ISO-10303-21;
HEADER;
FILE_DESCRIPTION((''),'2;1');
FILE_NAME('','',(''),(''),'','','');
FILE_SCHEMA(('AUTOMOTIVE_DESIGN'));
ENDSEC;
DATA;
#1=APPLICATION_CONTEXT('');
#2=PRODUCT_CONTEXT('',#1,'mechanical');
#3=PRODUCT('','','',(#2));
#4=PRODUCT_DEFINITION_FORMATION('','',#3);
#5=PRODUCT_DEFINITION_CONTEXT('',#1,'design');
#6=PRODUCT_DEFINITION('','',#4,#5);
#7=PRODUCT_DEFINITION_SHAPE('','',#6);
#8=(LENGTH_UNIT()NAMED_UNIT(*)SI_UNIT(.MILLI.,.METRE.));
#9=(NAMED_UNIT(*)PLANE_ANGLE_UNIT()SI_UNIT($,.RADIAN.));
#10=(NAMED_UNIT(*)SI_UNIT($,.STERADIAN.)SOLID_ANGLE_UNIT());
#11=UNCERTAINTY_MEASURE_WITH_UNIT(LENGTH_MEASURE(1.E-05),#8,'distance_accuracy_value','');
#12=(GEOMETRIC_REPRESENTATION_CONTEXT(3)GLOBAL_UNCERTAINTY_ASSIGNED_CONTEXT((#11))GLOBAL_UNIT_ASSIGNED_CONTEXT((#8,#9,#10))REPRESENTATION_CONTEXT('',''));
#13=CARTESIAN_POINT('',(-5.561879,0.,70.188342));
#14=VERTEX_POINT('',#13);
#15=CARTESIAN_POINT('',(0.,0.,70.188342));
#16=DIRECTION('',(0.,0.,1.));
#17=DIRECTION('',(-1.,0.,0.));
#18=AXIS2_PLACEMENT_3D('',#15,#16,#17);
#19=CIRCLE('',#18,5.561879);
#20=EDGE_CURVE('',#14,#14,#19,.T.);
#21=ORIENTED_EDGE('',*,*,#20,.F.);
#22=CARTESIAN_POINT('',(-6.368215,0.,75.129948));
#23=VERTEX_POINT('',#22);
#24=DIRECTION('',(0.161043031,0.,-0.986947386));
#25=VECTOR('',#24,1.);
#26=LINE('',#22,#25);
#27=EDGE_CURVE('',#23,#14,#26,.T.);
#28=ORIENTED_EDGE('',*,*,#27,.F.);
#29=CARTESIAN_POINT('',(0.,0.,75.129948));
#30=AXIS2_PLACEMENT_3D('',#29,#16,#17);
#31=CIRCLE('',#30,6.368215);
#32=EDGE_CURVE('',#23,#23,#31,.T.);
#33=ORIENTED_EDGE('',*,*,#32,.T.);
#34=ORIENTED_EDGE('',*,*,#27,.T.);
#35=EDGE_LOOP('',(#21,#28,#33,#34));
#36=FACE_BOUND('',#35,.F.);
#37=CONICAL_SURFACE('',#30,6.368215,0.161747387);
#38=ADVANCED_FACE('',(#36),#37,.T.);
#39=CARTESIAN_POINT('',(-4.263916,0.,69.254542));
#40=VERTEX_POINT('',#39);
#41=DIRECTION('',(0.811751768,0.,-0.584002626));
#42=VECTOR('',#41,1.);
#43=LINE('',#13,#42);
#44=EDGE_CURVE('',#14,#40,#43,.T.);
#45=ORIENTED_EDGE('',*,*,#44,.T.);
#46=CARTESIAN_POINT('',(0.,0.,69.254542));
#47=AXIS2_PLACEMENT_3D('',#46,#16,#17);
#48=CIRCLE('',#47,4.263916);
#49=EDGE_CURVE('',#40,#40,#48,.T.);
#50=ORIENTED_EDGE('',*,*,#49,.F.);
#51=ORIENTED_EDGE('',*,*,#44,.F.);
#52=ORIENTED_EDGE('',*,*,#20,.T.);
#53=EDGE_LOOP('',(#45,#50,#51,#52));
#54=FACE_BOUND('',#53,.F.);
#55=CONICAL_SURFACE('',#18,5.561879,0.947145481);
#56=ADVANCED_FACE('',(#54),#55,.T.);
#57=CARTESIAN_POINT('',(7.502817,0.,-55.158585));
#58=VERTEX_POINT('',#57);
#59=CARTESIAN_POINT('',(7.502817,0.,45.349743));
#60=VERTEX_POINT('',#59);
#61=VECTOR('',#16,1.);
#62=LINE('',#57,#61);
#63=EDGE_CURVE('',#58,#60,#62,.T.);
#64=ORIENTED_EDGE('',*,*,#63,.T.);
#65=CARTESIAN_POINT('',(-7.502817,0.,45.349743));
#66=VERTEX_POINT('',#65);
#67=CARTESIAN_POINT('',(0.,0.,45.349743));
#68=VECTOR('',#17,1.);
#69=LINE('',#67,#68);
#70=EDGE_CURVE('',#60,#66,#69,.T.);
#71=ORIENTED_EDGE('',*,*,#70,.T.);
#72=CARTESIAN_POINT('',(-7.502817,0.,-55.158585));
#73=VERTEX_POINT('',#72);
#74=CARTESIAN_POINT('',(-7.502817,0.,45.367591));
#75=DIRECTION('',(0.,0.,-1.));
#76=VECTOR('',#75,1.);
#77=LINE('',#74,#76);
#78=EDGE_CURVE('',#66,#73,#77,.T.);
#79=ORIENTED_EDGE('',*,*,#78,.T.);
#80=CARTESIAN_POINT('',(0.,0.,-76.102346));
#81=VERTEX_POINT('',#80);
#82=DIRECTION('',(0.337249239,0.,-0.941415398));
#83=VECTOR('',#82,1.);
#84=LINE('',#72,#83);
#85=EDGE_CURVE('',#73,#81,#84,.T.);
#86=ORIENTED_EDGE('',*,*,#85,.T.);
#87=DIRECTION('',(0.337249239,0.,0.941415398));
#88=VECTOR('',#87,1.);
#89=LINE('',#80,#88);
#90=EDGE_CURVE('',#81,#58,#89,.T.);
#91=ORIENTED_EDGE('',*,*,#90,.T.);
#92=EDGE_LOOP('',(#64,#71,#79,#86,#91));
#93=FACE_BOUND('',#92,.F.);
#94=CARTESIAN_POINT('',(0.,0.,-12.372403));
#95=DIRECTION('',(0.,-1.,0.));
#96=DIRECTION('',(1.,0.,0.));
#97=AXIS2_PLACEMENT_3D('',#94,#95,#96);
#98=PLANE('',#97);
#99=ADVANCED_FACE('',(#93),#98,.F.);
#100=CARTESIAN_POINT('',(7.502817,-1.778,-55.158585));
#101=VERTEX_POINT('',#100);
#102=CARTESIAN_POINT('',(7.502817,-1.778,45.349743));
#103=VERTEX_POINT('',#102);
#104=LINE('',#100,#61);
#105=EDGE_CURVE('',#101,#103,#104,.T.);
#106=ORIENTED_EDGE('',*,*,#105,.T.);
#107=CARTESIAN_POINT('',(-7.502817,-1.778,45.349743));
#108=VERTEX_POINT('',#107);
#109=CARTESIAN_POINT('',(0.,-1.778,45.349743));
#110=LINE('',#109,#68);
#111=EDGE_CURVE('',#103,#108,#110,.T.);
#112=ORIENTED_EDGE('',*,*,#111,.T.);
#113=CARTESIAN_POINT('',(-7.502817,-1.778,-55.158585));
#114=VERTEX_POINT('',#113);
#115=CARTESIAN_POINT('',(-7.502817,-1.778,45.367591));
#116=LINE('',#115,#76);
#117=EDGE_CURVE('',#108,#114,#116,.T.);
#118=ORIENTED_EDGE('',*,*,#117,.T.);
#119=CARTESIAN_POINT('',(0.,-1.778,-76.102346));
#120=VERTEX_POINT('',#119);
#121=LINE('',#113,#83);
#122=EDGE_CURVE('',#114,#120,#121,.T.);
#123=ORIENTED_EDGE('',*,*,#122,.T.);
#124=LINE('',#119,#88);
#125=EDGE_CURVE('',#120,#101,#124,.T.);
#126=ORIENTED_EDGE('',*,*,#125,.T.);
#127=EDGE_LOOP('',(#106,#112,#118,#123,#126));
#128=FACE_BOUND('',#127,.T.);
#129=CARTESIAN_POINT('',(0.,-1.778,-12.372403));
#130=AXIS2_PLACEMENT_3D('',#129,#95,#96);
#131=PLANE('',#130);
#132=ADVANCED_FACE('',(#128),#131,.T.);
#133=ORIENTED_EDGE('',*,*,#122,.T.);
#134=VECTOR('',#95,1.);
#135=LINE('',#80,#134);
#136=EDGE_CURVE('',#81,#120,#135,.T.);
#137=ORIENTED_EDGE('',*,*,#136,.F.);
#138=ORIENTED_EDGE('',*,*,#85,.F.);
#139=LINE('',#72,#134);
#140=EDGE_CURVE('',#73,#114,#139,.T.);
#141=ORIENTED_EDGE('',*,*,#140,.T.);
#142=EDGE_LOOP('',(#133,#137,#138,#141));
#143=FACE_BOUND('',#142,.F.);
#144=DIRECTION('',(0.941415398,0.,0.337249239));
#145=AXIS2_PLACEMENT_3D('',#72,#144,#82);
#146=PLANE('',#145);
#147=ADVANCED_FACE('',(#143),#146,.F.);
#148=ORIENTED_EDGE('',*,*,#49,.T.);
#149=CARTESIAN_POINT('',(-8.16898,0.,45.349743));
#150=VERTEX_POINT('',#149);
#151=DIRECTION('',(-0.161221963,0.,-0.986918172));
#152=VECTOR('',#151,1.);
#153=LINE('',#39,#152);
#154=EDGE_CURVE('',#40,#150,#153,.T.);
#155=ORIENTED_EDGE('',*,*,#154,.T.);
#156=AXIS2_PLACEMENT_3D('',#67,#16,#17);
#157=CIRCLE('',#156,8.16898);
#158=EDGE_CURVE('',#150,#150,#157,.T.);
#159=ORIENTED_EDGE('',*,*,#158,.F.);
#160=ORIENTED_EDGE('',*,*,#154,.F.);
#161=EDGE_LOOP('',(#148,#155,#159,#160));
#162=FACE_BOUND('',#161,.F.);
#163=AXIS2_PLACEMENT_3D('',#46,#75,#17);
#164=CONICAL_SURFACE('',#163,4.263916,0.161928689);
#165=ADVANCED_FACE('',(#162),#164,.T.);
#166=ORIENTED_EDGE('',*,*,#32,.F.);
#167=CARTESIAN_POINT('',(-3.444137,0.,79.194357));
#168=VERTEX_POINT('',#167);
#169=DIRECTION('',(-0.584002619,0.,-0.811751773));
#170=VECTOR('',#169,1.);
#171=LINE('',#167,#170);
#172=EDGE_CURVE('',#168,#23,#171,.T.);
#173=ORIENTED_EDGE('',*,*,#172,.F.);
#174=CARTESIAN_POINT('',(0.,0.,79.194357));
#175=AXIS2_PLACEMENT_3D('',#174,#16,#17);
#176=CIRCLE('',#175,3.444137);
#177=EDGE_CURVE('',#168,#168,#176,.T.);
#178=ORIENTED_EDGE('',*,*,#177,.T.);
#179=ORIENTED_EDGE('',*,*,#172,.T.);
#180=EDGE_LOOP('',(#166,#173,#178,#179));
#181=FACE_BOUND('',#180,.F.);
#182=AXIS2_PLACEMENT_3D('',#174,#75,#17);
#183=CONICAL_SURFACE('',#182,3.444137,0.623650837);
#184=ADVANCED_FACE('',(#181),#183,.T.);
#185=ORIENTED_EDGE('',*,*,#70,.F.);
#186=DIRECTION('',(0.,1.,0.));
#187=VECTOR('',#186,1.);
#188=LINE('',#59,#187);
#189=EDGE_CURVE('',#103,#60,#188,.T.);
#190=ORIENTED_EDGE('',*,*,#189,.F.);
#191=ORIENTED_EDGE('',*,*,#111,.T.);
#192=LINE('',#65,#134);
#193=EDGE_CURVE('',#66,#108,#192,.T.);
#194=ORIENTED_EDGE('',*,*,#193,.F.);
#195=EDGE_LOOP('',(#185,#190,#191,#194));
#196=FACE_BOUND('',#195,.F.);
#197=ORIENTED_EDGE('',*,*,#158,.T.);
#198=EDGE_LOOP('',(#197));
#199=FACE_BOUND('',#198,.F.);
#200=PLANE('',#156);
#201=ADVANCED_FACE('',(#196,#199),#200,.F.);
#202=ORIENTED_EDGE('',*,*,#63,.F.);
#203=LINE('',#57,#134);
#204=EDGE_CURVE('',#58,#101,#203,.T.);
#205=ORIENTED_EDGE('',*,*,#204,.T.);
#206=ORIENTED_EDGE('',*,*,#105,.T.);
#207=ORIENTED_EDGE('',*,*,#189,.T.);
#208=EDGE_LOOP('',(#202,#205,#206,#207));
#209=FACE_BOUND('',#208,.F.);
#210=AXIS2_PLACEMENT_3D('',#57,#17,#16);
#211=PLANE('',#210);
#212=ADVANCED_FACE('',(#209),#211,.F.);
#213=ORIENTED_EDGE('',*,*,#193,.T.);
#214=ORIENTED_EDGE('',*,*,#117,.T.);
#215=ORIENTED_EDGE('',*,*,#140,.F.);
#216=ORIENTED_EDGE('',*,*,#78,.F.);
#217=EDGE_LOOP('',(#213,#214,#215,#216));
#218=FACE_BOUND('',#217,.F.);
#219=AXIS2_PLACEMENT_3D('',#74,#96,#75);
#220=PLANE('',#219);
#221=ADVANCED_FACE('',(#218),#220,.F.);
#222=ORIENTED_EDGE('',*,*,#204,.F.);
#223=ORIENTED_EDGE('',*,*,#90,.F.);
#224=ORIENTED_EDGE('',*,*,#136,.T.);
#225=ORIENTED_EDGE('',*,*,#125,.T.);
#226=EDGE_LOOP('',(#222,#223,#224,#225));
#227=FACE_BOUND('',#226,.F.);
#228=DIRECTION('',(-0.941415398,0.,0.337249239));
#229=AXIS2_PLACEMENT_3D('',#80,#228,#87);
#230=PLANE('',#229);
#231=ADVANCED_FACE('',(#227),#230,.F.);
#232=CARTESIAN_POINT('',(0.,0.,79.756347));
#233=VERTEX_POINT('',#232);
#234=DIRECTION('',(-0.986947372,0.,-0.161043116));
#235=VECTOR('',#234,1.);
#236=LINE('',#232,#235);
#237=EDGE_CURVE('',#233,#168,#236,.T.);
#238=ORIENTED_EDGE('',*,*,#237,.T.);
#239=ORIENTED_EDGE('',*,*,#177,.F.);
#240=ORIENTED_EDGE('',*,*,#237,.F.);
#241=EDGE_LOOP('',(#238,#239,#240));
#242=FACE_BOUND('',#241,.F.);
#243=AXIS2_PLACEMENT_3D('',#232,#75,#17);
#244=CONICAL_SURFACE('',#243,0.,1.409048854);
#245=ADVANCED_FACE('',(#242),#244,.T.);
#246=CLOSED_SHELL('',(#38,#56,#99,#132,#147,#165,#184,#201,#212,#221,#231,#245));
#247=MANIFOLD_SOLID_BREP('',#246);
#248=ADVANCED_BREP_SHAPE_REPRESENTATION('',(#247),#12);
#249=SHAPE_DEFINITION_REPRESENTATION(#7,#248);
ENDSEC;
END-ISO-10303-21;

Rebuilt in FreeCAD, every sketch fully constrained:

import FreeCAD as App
import Part
import Sketcher

V = App.Vector

doc = App.newDocument("Part")
params = doc.addObject("Spreadsheet::Sheet", "Params")
for row, (alias, value) in enumerate([
    ("pad1_length", "0.07 in"),
    ("revolution_angle", "360 deg"),
], start=1):
    params.set(f"A{row}", alias)
    params.set(f"B{row}", "=" + value)
    params.setAlias(f"B{row}", alias)

body = doc.addObject("PartDesign::Body", "Body")

sketch1 = body.newObject("Sketcher::SketchObject", "Sketch")
sketch1.AttachmentSupport = (doc.getObject("XZ_Plane"), [""])
sketch1.MapMode = "FlatFace"
sketch1.addGeometry([
    Part.LineSegment(V(-8, 45, 0), V(-8, -55, 0)),
    Part.LineSegment(V(-8, -55, 0), V(0, -76, 0)),
    Part.LineSegment(V(0, -76, 0), V(8, -55, 0)),
    Part.LineSegment(V(8, -55, 0), V(8, 45, 0)),
    Part.LineSegment(V(8, 45, 0), V(-8, 45, 0)),
], False)
sketch1.addConstraint([
    Sketcher.Constraint("Coincident", 0, 2, 1, 1),
    Sketcher.Constraint("Coincident", 1, 2, 2, 1),
    Sketcher.Constraint("Coincident", 2, 2, 3, 1),
    Sketcher.Constraint("Coincident", 3, 2, 4, 1),
    Sketcher.Constraint("Coincident", 4, 2, 0, 1),
    Sketcher.Constraint("Vertical", 0),
    Sketcher.Constraint("Vertical", 3),
    Sketcher.Constraint("Horizontal", 4),
    Sketcher.Constraint("Symmetric", 0, 2, 2, 2, -2),
    Sketcher.Constraint("PointOnObject", 1, 2, -2),
    Sketcher.Constraint("Distance", 1, 22.247098),
    Sketcher.Constraint("DistanceX", 4, 2, 4, 1, 15.005634),
    Sketcher.Constraint("DistanceY", 0, 2, 0, 1, 100.526176),
    Sketcher.Constraint("DistanceY", -1, 1, 3, 2, 45.367591),
])
pad1 = body.newObject("PartDesign::Pad", "Pad")
pad1.Profile = sketch1
pad1.setExpression("Length", "Params.pad1_length")

sketch2 = body.newObject("Sketcher::SketchObject", "Sketch001")
sketch2.AttachmentSupport = (doc.getObject("XZ_Plane"), [""])
sketch2.MapMode = "FlatFace"
sketch2.addGeometry([
    Part.LineSegment(V(-8.2, 45.3, 0), V(0, 45.3, 0)),
    Part.LineSegment(V(0, 45.3, 0), V(0, 79.8, 0)),
    Part.LineSegment(V(0, 79.8, 0), V(-3.4, 79.2, 0)),
    Part.LineSegment(V(-3.4, 79.2, 0), V(-6.4, 75.1, 0)),
    Part.LineSegment(V(-6.4, 75.1, 0), V(-5.6, 70.2, 0)),
    Part.LineSegment(V(-5.6, 70.2, 0), V(-4.3, 69.3, 0)),
    Part.LineSegment(V(-4.3, 69.3, 0), V(-8.2, 45.3, 0)),
], False)
sketch2.addConstraint([
    Sketcher.Constraint("Coincident", 0, 2, 1, 1),
    Sketcher.Constraint("Coincident", 1, 2, 2, 1),
    Sketcher.Constraint("Coincident", 2, 2, 3, 1),
    Sketcher.Constraint("Coincident", 3, 2, 4, 1),
    Sketcher.Constraint("Coincident", 4, 2, 5, 1),
    Sketcher.Constraint("Coincident", 5, 2, 6, 1),
    Sketcher.Constraint("Coincident", 6, 2, 0, 1),
    Sketcher.Constraint("Horizontal", 0),
    Sketcher.Constraint("Vertical", 1),
    Sketcher.Constraint("PointOnObject", 0, 2, -2),
    Sketcher.Constraint("Perpendicular", 2, 4),
    Sketcher.Constraint("Perpendicular", 3, 5),
    Sketcher.Constraint("Equal", 3, 4),
    Sketcher.Constraint("DistanceX", 0, 1, 0, 2, 8.16898),
    Sketcher.Constraint("DistanceY", 3, 2, 1, 2, 4.626399),
    Sketcher.Constraint("DistanceY", 0, 2, 4, 2, 24.838599),
    Sketcher.Constraint("DistanceY", 5, 2, 4, 2, 0.9338),
    Sketcher.Constraint("DistanceX", 3, 2, 5, 2, 2.104299),
    Sketcher.Constraint("DistanceX", 6, 2, 4, 2, 2.607101),
    Sketcher.Constraint("Distance", 3, 5.00696),
    Sketcher.Constraint("DistanceY", -1, 1, 3, 2, 75.129948),
])
revolution = body.newObject("PartDesign::Revolution", "Revolution")
revolution.Profile = sketch2
revolution.ReferenceAxis = (sketch2, ["V_Axis"])
revolution.setExpression("Angle", "Params.revolution_angle")

doc.recompute()
